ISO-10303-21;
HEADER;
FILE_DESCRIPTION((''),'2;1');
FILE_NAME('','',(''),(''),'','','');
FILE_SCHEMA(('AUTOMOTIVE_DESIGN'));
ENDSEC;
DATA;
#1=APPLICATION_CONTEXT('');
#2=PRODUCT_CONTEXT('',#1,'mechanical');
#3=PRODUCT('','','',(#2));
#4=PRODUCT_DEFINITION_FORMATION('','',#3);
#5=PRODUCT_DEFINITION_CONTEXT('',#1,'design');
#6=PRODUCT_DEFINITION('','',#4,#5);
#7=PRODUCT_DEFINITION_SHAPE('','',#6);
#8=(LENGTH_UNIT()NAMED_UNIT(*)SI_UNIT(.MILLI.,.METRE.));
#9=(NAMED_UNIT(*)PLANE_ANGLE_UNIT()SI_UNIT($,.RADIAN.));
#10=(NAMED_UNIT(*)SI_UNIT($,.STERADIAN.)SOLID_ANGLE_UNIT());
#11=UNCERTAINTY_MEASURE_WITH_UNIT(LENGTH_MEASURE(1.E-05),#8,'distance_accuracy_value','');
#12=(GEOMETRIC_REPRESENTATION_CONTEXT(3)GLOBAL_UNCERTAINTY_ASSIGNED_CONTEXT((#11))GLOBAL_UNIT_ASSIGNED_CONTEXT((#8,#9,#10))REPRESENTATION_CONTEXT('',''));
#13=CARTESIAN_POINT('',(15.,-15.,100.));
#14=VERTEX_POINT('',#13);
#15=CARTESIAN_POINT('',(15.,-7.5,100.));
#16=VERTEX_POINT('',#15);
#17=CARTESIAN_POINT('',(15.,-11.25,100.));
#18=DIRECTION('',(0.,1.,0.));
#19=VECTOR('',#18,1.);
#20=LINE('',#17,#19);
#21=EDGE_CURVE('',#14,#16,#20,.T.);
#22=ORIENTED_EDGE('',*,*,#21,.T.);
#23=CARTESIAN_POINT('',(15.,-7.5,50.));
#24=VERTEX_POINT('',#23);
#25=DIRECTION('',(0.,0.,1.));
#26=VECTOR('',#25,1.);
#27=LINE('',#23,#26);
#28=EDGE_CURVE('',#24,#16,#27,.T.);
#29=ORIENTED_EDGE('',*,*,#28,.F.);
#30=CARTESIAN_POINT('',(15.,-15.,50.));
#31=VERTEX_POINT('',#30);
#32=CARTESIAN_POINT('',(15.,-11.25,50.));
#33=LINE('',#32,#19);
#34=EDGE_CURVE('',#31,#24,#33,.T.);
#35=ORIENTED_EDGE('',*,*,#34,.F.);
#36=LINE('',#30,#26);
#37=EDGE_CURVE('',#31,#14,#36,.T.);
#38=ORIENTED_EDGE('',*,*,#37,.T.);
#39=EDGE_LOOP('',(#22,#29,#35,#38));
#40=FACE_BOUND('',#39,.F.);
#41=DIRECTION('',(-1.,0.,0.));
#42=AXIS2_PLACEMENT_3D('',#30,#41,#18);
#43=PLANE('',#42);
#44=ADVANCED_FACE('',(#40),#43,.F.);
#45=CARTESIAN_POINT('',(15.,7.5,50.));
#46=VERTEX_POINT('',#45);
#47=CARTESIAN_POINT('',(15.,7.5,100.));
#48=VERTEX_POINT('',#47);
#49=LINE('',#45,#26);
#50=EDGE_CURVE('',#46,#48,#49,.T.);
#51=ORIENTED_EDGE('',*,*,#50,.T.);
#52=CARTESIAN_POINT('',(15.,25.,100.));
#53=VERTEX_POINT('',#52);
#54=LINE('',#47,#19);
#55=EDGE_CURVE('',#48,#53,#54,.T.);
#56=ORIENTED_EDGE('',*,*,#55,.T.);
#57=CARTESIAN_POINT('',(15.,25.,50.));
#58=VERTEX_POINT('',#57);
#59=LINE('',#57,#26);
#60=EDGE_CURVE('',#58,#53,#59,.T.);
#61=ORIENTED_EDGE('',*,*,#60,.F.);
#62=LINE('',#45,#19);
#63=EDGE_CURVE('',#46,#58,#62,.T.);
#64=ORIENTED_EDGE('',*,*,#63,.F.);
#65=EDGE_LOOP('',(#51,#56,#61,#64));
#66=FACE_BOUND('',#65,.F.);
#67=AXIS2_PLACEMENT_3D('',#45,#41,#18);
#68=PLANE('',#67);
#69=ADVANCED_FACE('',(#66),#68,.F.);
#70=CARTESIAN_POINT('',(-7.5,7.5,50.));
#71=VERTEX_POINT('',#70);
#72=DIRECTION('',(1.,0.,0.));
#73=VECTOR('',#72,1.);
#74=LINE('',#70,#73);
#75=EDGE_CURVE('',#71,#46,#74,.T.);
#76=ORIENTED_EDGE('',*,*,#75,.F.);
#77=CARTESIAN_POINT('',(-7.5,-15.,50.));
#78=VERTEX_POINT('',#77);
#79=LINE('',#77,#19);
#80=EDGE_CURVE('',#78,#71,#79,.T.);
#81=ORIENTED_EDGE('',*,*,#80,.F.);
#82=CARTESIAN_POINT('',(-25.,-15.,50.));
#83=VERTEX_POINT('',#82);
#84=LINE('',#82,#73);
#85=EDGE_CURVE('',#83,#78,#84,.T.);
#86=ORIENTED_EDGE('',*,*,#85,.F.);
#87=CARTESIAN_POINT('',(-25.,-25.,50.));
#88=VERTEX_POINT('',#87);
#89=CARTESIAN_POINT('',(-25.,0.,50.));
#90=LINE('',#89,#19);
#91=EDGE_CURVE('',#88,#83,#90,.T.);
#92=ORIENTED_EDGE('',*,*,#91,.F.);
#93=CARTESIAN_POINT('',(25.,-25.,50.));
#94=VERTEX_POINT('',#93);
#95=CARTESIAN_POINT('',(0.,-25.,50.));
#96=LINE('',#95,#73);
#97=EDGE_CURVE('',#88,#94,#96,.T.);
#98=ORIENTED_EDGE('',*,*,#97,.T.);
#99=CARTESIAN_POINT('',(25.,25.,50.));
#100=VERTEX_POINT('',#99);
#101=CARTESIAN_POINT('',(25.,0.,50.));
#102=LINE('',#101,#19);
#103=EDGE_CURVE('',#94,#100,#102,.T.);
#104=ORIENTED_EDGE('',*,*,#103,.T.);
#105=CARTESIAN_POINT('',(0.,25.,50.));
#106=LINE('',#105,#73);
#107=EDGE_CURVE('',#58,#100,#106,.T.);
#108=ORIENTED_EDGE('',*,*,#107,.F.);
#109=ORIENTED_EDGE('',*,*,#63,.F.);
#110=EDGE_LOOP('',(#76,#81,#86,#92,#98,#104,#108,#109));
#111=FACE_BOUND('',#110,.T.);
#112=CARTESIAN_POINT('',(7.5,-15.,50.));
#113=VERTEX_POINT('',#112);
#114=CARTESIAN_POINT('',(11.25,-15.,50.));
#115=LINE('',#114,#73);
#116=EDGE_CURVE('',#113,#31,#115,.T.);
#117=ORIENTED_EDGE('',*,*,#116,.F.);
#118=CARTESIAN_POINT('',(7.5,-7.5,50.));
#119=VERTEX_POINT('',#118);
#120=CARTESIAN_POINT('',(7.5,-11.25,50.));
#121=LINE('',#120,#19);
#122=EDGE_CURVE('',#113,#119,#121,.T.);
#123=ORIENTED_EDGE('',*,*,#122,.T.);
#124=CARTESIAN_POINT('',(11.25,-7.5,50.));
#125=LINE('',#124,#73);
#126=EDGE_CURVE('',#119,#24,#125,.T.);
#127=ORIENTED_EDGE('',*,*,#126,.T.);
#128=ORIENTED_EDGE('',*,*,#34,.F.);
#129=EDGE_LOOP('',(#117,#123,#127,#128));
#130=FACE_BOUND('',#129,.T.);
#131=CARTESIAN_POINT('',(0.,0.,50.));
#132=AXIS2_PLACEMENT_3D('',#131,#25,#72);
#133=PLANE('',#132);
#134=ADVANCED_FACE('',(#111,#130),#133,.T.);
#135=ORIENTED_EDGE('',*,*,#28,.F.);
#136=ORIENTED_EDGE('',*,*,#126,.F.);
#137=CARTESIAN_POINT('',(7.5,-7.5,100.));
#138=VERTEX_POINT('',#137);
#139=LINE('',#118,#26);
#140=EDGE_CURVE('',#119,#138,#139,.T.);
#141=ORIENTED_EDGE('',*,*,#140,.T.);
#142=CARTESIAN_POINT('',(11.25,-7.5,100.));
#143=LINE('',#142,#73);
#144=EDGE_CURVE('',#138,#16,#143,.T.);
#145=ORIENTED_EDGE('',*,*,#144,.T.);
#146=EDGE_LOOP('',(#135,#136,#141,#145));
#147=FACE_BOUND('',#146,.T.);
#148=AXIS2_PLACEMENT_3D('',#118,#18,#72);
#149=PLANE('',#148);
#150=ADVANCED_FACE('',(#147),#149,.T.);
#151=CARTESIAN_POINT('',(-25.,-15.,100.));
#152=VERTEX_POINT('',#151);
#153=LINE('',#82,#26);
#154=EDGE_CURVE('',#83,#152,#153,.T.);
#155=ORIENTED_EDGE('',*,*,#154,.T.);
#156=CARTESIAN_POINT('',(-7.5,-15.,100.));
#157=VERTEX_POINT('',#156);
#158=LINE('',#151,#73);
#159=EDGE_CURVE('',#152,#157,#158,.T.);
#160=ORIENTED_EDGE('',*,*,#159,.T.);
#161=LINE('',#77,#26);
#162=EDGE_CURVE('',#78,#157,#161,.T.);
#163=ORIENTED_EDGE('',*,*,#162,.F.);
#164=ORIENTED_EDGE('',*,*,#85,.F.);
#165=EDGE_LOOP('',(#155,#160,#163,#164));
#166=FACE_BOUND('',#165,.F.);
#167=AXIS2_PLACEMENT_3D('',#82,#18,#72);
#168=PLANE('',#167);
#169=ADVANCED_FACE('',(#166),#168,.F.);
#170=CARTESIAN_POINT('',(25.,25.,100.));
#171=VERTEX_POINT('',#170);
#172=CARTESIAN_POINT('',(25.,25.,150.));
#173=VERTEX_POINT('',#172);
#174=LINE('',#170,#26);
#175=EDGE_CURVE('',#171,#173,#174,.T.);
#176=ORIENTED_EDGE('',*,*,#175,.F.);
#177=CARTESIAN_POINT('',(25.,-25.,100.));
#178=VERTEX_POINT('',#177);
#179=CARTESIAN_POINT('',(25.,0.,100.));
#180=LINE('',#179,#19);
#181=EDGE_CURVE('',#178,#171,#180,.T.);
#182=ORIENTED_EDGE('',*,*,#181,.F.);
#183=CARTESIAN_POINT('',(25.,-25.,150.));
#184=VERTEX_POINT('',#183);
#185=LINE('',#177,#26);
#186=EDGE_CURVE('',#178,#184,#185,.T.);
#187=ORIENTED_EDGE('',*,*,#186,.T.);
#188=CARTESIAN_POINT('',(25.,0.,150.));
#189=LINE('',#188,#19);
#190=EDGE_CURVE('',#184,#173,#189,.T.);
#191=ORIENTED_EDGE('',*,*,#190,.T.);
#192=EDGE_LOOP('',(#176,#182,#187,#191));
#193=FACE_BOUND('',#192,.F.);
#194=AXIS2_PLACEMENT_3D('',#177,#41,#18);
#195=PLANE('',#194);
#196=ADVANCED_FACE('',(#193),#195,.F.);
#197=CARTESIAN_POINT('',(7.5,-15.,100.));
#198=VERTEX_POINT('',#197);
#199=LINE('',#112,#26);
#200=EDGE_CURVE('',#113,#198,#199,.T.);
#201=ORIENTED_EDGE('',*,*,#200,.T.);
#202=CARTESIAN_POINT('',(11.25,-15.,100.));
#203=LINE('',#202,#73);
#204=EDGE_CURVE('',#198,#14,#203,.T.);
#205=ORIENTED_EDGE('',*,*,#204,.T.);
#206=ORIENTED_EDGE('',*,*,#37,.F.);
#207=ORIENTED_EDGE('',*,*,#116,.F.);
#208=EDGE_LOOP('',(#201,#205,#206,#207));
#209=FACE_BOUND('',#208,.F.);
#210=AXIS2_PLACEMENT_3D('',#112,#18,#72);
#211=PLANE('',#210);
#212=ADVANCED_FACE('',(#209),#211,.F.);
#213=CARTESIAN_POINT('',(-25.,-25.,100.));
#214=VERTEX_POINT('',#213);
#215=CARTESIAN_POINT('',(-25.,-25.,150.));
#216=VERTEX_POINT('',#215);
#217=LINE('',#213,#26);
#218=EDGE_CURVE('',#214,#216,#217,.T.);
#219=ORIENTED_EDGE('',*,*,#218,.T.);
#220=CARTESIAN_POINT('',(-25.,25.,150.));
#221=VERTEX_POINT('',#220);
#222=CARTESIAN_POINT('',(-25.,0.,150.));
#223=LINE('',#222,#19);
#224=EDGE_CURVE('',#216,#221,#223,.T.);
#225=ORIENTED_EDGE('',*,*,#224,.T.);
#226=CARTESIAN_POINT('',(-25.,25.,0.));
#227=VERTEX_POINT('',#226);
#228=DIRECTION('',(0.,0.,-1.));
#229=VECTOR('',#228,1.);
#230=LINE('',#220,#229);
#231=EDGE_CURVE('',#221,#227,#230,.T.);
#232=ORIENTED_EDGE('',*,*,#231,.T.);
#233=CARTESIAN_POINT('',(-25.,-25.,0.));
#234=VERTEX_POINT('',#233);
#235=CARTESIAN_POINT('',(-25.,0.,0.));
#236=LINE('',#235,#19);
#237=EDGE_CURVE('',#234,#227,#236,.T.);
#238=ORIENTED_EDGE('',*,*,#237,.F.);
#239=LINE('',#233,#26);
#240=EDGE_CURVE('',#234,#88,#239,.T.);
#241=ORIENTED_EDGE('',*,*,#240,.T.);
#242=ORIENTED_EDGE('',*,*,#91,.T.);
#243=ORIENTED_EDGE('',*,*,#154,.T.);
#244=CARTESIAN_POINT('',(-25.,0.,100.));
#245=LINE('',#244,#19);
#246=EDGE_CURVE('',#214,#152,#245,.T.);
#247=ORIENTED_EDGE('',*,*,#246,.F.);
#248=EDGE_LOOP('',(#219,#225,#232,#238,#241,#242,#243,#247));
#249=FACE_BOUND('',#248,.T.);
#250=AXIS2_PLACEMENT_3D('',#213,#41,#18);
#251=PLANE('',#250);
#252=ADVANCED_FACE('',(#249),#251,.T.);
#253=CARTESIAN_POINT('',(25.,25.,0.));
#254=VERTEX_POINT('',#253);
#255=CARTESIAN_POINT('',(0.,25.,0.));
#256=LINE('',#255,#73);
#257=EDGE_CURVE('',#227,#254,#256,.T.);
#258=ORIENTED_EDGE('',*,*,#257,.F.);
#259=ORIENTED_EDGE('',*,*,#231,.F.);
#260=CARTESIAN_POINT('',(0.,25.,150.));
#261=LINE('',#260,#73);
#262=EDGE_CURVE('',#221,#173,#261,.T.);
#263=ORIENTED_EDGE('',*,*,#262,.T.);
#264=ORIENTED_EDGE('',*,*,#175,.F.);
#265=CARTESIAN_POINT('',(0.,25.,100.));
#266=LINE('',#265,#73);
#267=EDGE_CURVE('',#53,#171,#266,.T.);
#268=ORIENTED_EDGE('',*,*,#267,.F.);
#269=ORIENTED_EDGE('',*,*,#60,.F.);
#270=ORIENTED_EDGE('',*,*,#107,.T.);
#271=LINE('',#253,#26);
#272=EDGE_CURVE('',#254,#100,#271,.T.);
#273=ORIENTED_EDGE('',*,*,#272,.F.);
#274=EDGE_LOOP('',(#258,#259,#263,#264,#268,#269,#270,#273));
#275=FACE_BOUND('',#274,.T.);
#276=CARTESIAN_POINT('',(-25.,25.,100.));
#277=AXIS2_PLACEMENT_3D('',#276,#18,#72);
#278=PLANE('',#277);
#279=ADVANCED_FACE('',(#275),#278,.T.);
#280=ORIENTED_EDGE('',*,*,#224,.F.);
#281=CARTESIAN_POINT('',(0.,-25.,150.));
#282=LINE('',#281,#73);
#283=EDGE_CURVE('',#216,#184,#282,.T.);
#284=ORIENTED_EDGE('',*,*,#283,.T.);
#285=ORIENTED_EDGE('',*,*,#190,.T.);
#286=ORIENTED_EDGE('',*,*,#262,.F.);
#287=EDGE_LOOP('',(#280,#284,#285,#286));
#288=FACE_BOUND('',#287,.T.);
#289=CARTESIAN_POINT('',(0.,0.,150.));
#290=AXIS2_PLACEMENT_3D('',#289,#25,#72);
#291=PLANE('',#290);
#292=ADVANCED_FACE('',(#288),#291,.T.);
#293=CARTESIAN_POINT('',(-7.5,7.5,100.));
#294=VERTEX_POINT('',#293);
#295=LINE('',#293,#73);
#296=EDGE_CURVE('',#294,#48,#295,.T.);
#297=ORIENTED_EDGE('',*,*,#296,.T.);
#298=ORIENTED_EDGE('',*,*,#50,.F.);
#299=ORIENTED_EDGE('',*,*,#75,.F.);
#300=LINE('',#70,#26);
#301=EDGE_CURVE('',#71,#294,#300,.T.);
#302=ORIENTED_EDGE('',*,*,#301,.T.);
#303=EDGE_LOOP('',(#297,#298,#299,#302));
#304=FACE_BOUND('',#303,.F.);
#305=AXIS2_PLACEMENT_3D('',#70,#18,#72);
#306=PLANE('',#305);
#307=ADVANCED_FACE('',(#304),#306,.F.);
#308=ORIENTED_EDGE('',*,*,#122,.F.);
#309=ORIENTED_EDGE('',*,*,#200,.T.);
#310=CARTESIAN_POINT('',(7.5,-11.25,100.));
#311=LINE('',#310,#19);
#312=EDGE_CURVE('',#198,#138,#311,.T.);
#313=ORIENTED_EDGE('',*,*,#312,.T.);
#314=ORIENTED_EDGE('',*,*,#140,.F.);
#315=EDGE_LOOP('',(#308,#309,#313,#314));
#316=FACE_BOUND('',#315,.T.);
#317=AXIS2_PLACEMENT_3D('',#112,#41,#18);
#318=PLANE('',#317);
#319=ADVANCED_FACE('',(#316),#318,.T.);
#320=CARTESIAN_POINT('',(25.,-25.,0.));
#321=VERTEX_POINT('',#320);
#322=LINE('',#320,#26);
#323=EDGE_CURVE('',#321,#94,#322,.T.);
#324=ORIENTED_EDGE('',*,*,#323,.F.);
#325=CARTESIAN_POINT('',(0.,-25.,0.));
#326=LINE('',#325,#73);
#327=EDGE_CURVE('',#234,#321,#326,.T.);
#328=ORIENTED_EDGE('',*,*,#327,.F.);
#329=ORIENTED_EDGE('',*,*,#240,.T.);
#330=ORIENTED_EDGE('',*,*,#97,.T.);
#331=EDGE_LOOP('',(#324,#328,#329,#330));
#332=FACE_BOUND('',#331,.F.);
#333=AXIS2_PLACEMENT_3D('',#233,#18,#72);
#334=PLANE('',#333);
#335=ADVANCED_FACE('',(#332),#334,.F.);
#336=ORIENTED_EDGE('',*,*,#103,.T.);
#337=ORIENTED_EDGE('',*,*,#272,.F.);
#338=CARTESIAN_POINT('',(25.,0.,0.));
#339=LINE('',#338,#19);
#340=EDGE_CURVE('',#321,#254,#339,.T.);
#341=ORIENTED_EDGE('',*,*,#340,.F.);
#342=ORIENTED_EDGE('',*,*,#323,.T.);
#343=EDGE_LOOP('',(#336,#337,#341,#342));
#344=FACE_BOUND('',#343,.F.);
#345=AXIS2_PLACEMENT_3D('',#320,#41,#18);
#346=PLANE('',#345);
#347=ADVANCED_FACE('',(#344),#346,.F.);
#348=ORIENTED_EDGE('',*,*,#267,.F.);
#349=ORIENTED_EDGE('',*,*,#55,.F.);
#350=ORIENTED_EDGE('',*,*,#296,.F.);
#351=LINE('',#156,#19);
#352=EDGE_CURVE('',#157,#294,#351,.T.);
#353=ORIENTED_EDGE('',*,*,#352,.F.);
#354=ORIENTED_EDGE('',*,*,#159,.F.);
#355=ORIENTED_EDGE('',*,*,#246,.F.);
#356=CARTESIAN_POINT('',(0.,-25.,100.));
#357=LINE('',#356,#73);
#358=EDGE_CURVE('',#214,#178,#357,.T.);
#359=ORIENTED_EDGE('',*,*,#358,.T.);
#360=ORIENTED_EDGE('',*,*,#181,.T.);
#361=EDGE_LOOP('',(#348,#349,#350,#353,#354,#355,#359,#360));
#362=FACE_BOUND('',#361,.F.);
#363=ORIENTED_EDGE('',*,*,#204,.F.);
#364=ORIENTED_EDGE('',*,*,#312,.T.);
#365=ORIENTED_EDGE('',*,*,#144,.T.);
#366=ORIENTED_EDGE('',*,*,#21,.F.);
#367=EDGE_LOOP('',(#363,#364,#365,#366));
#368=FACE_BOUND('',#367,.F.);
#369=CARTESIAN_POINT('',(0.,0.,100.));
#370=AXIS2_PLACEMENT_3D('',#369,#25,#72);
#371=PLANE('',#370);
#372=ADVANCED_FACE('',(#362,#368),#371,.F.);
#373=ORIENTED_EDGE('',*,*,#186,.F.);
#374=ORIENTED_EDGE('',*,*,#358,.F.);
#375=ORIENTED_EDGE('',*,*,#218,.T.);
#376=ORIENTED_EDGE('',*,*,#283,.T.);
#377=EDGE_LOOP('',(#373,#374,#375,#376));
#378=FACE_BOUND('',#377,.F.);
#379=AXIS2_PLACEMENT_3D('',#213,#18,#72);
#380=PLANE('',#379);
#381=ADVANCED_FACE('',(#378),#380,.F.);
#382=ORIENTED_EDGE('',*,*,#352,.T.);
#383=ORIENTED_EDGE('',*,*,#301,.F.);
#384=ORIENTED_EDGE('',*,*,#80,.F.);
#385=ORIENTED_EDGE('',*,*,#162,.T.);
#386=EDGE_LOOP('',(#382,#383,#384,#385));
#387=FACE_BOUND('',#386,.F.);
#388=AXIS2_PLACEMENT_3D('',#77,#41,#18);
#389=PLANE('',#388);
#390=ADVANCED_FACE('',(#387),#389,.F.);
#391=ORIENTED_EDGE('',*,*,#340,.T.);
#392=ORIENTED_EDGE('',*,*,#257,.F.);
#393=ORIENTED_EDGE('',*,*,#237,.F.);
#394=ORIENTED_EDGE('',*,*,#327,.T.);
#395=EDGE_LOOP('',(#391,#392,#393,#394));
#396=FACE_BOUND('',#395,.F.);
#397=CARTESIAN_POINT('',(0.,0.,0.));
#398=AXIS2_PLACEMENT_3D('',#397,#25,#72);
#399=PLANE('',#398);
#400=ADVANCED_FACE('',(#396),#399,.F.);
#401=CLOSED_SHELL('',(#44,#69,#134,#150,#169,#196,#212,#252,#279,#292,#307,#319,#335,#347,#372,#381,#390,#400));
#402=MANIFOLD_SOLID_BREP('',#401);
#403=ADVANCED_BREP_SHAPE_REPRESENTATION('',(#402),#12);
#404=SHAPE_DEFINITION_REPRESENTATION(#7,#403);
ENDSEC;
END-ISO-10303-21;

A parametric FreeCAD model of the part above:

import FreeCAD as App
import Part
import Sketcher


def add_polygon(sketch, points):
    """Adds a closed chain of lines whose ends are joined by coincident constraints."""
    first, n = sketch.GeometryCount, len(points)
    for a, b in zip(points, points[1:] + points[:1]):
        sketch.addGeometry(Part.LineSegment(App.Vector(*a, 0), App.Vector(*b, 0)), False)
    for i in range(n):
        sketch.addConstraint(Sketcher.Constraint("Coincident", first + i, 2, first + (i + 1) % n, 1))

doc = App.newDocument("Part")
params = doc.addObject("Spreadsheet::Sheet", "Params")
for row, (alias, value) in enumerate([
    ("sketch1_width", "50 mm"),
    ("pad1_length", "50 mm"),
    ("sketch2_width", "40 mm"),
    ("sketch2_width2", "17.5 mm"),
    ("sketch2_width3", "7.5 mm"),
    ("pad2_length", "50 mm"),
    ("sketch3_width", "50 mm"),
    ("pad3_length", "50 mm"),
], start=1):
    params.set(f"A{row}", alias)
    params.set(f"B{row}", "=" + value)
    params.setAlias(f"B{row}", alias)

body = doc.addObject("PartDesign::Body", "Body")

# Sketch on XY plane
sketch1 = doc.addObject("Sketcher::SketchObject", "Sketch")
body.addObject(sketch1)
sketch1.AttachmentSupport = (doc.XY_Plane, [""])
sketch1.MapMode = "FlatFace"
add_polygon(sketch1, [(-25, 25), (-25, -25), (25, -25), (25, 25)])  # lines 0-3
sketch1.addConstraint([
    Sketcher.Constraint("Vertical", 0),
    Sketcher.Constraint("Horizontal", 1),
    Sketcher.Constraint("Vertical", 2),
    Sketcher.Constraint("Horizontal", 3),
    Sketcher.Constraint("Symmetric", 0, 2, 2, 2, -1, 1),
    Sketcher.Constraint("Equal", 3, 0),
    Sketcher.Constraint("DistanceX", 1, 1, 1, 2, 50.0),
])
sketch1.setExpression("Constraints[10]", "Params.sketch1_width")
pad1 = doc.addObject("PartDesign::Pad", "Pad")
body.addObject(pad1)
pad1.Profile = sketch1
pad1.setExpression("Length", "Params.pad1_length")

# Sketch on XY plane
sketch2 = doc.addObject("Sketcher::SketchObject", "Sketch001")
body.addObject(sketch2)
sketch2.AttachmentSupport = (doc.XY_Plane, [""])
sketch2.MapMode = "FlatFace"
sketch2.AttachmentOffset = App.Placement(App.Vector(0, 0, 50), App.Rotation())
add_polygon(sketch2, [(15, 25), (-25, 25), (-25, -15), (-8, -15), (-8, 8), (15, 8)])  # lines 0-5
add_polygon(sketch2, [(8, -8), (8, -15), (15, -15), (15, -8)])  # lines 6-9
sketch2.addConstraint([
    Sketcher.Constraint("Horizontal", 0),
    Sketcher.Constraint("Vertical", 1),
    Sketcher.Constraint("Horizontal", 2),
    Sketcher.Constraint("Vertical", 3),
    Sketcher.Constraint("Horizontal", 4),
    Sketcher.Constraint("Vertical", 5),
    Sketcher.Constraint("Vertical", 6),
    Sketcher.Constraint("Horizontal", 7),
    Sketcher.Constraint("Vertical", 8),
    Sketcher.Constraint("Horizontal", 9),
    Sketcher.Constraint("Symmetric", 3, 2, 9, 2, -1, 1),
    Sketcher.Constraint("Horizontal", 2, 2, 6, 2),
    Sketcher.Constraint("Vertical", 5, 2, 7, 2),
    Sketcher.Constraint("Equal", 0, 1),
    Sketcher.Constraint("Equal", 4, 3),
    Sketcher.Constraint("Equal", 9, 6),
    Sketcher.Constraint("DistanceX", 0, 2, 0, 1, 40.0),
    Sketcher.Constraint("DistanceX", 2, 1, 2, 2, 17.5),
    Sketcher.Constraint("DistanceX", 7, 1, 7, 2, 7.5),
])
sketch2.setExpression("Constraints[26]", "Params.sketch2_width")
sketch2.setExpression("Constraints[27]", "Params.sketch2_width2")
sketch2.setExpression("Constraints[28]", "Params.sketch2_width3")
pad2 = doc.addObject("PartDesign::Pad", "Pad001")
body.addObject(pad2)
pad2.Profile = sketch2
pad2.setExpression("Length", "Params.pad2_length")

# Sketch on XY plane
sketch3 = doc.addObject("Sketcher::SketchObject", "Sketch002")
body.addObject(sketch3)
sketch3.AttachmentSupport = (doc.XY_Plane, [""])
sketch3.MapMode = "FlatFace"
sketch3.AttachmentOffset = App.Placement(App.Vector(0, 0, 100), App.Rotation())
add_polygon(sketch3, [(-25, 25), (-25, -25), (25, -25), (25, 25)])  # lines 0-3
sketch3.addConstraint([
    Sketcher.Constraint("Vertical", 0),
    Sketcher.Constraint("Horizontal", 1),
    Sketcher.Constraint("Vertical", 2),
    Sketcher.Constraint("Horizontal", 3),
    Sketcher.Constraint("Symmetric", 0, 2, 2, 2, -1, 1),
    Sketcher.Constraint("Equal", 3, 0),
    Sketcher.Constraint("DistanceX", 1, 1, 1, 2, 50.0),
])
sketch3.setExpression("Constraints[10]", "Params.sketch3_width")
pad3 = doc.addObject("PartDesign::Pad", "Pad002")
body.addObject(pad3)
pad3.Profile = sketch3
pad3.setExpression("Length", "Params.pad3_length")

doc.recompute()
